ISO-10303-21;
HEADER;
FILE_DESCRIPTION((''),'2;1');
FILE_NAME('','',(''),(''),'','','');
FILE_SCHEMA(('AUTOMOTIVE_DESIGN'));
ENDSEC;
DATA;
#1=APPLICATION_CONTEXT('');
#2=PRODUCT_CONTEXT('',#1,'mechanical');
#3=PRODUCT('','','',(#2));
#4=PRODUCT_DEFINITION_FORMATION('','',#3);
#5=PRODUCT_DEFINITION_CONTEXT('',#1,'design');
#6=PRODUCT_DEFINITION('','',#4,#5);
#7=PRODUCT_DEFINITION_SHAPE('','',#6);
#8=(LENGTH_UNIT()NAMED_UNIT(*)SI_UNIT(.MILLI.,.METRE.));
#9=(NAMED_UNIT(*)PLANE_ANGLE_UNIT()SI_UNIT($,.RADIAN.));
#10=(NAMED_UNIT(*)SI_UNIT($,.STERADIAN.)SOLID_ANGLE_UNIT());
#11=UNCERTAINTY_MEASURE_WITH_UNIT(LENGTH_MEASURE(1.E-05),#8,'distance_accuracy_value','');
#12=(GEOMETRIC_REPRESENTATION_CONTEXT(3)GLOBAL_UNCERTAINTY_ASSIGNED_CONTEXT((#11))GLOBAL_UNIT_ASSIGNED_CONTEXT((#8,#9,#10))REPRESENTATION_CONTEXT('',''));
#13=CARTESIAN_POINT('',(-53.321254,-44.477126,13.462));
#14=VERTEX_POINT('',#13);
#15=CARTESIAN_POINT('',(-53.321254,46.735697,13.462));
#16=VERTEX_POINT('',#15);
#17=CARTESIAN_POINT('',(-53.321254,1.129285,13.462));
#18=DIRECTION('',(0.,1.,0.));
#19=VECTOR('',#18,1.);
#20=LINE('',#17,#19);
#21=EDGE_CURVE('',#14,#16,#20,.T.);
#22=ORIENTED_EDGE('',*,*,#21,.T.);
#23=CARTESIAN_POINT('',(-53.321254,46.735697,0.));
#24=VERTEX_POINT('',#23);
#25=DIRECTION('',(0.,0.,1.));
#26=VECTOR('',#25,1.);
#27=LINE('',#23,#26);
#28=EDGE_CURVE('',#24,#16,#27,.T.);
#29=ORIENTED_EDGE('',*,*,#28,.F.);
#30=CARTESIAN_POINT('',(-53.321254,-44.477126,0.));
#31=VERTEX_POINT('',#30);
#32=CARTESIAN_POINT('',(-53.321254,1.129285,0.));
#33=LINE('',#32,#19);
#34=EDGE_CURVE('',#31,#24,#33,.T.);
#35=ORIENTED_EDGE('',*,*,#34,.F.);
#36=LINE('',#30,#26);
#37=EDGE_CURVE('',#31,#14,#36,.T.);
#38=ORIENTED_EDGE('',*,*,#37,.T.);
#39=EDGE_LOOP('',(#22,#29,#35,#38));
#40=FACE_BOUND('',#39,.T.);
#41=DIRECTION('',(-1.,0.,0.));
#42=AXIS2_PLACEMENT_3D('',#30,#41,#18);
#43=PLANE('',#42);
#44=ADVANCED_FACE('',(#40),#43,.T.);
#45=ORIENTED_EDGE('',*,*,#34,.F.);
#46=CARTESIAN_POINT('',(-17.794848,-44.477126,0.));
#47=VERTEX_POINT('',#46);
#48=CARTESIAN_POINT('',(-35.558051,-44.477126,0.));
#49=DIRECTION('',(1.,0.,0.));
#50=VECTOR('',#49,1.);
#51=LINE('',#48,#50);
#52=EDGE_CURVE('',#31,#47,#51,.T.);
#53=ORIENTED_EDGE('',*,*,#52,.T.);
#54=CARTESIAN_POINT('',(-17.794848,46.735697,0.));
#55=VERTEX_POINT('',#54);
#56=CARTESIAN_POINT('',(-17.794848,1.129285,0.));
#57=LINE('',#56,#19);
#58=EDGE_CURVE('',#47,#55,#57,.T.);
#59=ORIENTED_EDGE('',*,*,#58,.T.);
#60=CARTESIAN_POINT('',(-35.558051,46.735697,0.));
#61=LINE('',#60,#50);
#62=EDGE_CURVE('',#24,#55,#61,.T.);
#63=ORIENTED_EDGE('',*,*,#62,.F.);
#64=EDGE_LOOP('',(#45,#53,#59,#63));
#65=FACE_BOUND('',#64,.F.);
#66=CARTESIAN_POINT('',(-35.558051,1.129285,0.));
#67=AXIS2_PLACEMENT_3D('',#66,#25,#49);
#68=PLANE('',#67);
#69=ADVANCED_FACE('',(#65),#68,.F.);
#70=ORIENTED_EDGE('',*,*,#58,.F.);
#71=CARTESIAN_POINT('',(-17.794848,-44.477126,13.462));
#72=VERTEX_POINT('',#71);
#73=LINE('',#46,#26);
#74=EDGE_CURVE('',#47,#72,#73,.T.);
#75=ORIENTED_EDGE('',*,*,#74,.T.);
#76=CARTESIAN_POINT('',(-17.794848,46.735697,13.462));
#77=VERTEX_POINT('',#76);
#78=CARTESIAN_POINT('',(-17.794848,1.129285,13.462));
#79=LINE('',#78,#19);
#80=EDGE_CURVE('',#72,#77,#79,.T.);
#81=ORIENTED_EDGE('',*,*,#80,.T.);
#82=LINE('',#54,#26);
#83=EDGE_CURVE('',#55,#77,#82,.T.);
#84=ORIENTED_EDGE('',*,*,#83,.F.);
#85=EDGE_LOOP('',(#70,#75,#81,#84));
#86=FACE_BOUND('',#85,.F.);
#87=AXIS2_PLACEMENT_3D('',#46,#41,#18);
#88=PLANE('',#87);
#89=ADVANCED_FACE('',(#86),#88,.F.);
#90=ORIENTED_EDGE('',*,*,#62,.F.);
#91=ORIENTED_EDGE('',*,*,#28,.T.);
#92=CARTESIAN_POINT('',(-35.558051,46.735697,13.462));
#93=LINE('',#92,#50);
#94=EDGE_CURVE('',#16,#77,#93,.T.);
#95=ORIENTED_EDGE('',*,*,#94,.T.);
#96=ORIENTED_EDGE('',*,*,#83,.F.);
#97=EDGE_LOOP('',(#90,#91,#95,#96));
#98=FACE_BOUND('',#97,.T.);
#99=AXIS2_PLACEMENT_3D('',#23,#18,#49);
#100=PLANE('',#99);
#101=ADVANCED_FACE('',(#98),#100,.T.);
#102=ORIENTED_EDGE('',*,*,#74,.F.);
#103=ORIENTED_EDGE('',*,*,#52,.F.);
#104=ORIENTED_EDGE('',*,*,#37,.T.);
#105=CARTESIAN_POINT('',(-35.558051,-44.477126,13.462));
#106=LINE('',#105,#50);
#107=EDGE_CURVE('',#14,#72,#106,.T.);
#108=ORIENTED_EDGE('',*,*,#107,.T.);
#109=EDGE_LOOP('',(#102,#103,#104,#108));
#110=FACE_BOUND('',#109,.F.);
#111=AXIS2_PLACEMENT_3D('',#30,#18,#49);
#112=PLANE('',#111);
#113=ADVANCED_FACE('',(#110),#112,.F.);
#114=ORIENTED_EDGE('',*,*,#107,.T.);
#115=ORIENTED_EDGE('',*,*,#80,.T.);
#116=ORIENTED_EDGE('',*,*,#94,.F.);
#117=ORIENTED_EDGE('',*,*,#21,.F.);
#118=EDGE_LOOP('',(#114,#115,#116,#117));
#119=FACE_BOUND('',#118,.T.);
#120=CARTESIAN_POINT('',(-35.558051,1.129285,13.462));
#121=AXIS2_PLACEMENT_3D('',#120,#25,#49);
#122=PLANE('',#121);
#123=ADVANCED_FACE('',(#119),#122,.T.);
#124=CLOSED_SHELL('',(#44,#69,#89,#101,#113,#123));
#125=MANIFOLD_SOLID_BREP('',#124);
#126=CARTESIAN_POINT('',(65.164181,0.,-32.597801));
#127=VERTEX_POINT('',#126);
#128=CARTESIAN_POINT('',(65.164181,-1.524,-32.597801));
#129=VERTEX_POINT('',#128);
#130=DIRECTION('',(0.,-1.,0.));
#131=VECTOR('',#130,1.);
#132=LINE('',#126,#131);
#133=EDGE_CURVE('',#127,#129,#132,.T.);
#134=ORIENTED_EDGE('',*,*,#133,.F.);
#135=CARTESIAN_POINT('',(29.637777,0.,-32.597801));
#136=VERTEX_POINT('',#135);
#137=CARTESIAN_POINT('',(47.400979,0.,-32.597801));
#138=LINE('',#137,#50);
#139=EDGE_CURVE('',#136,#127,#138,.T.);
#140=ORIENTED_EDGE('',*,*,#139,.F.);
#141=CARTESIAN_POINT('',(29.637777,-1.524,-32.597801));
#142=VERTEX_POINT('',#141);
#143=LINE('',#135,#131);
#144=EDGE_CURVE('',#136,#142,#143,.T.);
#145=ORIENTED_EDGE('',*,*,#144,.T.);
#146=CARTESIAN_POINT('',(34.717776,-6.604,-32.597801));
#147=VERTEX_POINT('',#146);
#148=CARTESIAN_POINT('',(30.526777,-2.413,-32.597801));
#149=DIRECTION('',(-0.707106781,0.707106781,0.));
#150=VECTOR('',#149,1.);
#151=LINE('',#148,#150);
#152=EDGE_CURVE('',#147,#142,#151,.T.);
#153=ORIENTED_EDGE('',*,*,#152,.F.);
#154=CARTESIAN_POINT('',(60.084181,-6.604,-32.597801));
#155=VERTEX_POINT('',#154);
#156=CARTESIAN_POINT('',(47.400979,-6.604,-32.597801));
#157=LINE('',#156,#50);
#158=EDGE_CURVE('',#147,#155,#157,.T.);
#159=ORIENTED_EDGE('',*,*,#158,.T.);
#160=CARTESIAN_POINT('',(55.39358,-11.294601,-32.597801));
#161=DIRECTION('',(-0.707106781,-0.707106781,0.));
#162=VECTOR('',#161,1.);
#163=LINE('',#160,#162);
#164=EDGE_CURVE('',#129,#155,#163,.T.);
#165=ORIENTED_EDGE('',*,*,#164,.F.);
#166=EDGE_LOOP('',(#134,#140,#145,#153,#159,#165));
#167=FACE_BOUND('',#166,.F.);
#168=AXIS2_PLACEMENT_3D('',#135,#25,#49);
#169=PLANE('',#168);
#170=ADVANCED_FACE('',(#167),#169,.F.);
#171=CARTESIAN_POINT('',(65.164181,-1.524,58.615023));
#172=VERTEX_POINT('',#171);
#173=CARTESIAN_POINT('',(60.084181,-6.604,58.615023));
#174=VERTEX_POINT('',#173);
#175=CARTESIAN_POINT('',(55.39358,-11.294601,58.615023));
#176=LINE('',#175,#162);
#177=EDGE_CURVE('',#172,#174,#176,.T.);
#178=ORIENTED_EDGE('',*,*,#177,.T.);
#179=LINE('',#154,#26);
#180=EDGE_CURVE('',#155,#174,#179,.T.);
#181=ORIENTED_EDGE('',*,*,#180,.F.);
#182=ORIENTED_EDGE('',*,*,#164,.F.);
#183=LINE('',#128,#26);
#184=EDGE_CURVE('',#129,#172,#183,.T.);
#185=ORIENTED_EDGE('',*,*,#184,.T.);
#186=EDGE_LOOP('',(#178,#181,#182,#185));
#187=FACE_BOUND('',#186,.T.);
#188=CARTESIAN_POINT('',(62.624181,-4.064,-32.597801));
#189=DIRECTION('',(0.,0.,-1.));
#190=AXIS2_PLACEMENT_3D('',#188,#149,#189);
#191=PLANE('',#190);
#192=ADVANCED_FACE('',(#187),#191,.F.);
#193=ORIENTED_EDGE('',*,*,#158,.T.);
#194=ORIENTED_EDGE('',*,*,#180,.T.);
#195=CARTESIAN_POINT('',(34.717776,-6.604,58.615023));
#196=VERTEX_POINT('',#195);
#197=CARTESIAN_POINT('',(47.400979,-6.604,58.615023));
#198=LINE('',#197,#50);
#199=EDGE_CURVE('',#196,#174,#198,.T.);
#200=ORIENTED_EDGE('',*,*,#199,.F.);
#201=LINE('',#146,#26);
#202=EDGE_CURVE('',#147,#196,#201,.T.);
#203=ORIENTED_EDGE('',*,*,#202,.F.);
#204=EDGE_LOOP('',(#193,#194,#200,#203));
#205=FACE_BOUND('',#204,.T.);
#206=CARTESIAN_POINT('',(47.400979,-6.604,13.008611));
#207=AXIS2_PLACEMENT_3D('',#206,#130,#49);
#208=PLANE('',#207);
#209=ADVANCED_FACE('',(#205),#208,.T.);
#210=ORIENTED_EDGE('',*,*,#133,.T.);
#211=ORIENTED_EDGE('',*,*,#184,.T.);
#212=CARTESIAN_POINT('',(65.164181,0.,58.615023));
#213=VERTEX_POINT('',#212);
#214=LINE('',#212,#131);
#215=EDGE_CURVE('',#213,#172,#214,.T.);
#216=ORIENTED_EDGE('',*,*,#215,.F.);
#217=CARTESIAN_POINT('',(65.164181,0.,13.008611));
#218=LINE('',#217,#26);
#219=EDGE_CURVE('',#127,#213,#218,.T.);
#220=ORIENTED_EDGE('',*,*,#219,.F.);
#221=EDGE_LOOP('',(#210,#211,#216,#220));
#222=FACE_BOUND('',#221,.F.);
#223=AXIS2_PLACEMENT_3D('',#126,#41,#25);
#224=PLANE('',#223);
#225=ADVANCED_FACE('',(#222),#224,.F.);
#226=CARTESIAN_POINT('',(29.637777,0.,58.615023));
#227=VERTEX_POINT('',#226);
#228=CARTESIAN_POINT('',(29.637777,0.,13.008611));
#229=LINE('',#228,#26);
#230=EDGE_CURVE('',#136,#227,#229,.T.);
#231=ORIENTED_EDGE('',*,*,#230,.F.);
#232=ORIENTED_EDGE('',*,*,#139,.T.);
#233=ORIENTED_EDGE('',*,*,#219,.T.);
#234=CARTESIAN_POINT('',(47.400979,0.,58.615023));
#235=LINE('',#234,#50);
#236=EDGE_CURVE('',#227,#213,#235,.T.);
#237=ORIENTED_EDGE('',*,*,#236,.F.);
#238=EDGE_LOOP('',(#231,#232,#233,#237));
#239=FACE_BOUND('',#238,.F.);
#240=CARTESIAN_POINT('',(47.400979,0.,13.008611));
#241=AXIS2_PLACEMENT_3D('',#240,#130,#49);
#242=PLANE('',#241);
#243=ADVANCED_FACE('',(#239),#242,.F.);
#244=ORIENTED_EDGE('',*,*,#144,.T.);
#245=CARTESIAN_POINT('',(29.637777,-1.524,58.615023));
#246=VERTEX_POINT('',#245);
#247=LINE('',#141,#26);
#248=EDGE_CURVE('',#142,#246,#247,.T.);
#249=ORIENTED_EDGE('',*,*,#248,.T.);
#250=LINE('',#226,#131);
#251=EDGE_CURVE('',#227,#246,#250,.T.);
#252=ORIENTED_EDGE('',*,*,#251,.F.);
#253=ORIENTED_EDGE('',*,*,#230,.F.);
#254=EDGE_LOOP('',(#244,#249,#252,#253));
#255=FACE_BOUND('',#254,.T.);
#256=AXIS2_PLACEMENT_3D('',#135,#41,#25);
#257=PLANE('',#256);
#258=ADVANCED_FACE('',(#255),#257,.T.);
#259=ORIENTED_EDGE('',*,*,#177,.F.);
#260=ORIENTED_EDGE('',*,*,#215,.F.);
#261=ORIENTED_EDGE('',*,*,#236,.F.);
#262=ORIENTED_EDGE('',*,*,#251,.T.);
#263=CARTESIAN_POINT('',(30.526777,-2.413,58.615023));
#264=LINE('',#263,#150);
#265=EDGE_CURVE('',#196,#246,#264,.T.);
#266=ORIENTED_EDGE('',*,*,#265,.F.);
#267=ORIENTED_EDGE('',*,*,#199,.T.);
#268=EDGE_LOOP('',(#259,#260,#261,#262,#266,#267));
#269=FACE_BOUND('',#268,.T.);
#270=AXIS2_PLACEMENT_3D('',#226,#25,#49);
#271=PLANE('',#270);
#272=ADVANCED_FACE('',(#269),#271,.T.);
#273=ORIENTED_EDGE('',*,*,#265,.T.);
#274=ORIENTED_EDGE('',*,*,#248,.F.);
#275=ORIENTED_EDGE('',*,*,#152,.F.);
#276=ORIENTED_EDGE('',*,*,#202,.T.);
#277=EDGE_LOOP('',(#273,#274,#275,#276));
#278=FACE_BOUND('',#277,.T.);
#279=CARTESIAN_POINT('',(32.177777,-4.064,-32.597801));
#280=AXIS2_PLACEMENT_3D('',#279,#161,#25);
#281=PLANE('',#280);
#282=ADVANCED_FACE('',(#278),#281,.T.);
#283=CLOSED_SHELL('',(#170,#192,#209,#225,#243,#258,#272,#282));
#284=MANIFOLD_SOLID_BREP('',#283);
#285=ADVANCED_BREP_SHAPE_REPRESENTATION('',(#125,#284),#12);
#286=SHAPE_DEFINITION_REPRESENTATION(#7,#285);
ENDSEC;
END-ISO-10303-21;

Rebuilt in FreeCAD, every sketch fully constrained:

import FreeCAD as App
import Part
import Sketcher

V = App.Vector


def edges_at(feature, points):
    """Names of the edges that pass closest to the given points."""
    edges = feature.Shape.Edges
    near = lambda p: min(range(len(edges)), key=lambda i: edges[i].distToShape(Part.Vertex(*p))[0])
    return sorted({f"Edge{near(p) + 1}" for p in points})


def add_polygon(sketch, points):
    """Adds a closed chain of lines whose ends are joined by coincident constraints."""
    first, n = sketch.GeometryCount, len(points)
    for a, b in zip(points, points[1:] + points[:1]):
        sketch.addGeometry(Part.LineSegment(App.Vector(*a, 0), App.Vector(*b, 0)), False)
    for i in range(n):
        sketch.addConstraint(Sketcher.Constraint("Coincident", first + i, 2, first + (i + 1) % n, 1))

doc = App.newDocument("Part")
params = doc.addObject("Spreadsheet::Sheet", "Params")
for row, (alias, value) in enumerate([
    ("pad1_length", "0.53 in"),
    ("pad2_length", "0.26 in"),
    ("chamfer_size", "0.2 in"),
    ("chamfer2_size", "0.2 in"),
], start=1):
    params.set(f"A{row}", alias)
    params.set(f"B{row}", "=" + value)
    params.setAlias(f"B{row}", alias)

body = doc.addObject("PartDesign::Body", "Body")

# Sketch on XY plane
sketch1 = body.newObject("Sketcher::SketchObject", "Sketch")
sketch1.AttachmentSupport = (doc.getObject("XY_Plane"), [""])
sketch1.MapMode = "FlatFace"
add_polygon(sketch1, [(-53, 47), (-53, -44), (-18, -44), (-18, 47)])  # lines 0-3
sketch1.addConstraint([
    Sketcher.Constraint("Vertical", 0),
    Sketcher.Constraint("Horizontal", 1),
    Sketcher.Constraint("Vertical", 2),
    Sketcher.Constraint("Horizontal", 3),
    Sketcher.Constraint("DistanceX", 1, 1, 1, 2, 35.526406),
    Sketcher.Constraint("DistanceY", 0, 2, 0, 1, 91.212823),
    Sketcher.Constraint("DistanceX", 1, 2, -1, 1, 17.794848),
    Sketcher.Constraint("DistanceY", 0, 2, -1, 1, 44.477126),
])
pad1 = body.newObject("PartDesign::Pad", "Pad")
pad1.Profile = sketch1
pad1.setExpression("Length", "Params.pad1_length")
body2 = doc.addObject("PartDesign::Body", "Body001")

# Sketch on XZ plane
sketch2 = body2.newObject("Sketcher::SketchObject", "Sketch001")
sketch2.AttachmentSupport = (doc.getObject("XZ_Plane001"), [""])
sketch2.MapMode = "FlatFace"
add_polygon(sketch2, [(30, 59), (30, -33), (65, -33), (65, 59)])  # lines 0-3
sketch2.addConstraint([
    Sketcher.Constraint("Vertical", 0),
    Sketcher.Constraint("Horizontal", 1),
    Sketcher.Constraint("Vertical", 2),
    Sketcher.Constraint("Horizontal", 3),
    Sketcher.Constraint("DistanceY", 0, 2, -1, 1, 32.597801),
    Sketcher.Constraint("DistanceX", 1, 1, 1, 2, 35.526405),
    Sketcher.Constraint("DistanceY", 0, 2, 0, 1, 91.212824),
    Sketcher.Constraint("DistanceX", -1, 1, 1, 2, 65.164181),
])
pad2 = body2.newObject("PartDesign::Pad", "Pad001")
pad2.Profile = sketch2
pad2.setExpression("Length", "Params.pad2_length")
doc.recompute()

chamfer = body2.newObject("PartDesign::Chamfer", "Chamfer")
chamfer.Base = (pad2, edges_at(pad2, [(65.164, -6.604, 13.009)]))
chamfer.setExpression("Size", "Params.chamfer_size")
doc.recompute()

chamfer2 = body2.newObject("PartDesign::Chamfer", "Chamfer001")
chamfer2.Base = (chamfer, edges_at(chamfer, [(29.638, -6.604, 13.009)]))
chamfer2.setExpression("Size", "Params.chamfer2_size")

doc.recompute()
